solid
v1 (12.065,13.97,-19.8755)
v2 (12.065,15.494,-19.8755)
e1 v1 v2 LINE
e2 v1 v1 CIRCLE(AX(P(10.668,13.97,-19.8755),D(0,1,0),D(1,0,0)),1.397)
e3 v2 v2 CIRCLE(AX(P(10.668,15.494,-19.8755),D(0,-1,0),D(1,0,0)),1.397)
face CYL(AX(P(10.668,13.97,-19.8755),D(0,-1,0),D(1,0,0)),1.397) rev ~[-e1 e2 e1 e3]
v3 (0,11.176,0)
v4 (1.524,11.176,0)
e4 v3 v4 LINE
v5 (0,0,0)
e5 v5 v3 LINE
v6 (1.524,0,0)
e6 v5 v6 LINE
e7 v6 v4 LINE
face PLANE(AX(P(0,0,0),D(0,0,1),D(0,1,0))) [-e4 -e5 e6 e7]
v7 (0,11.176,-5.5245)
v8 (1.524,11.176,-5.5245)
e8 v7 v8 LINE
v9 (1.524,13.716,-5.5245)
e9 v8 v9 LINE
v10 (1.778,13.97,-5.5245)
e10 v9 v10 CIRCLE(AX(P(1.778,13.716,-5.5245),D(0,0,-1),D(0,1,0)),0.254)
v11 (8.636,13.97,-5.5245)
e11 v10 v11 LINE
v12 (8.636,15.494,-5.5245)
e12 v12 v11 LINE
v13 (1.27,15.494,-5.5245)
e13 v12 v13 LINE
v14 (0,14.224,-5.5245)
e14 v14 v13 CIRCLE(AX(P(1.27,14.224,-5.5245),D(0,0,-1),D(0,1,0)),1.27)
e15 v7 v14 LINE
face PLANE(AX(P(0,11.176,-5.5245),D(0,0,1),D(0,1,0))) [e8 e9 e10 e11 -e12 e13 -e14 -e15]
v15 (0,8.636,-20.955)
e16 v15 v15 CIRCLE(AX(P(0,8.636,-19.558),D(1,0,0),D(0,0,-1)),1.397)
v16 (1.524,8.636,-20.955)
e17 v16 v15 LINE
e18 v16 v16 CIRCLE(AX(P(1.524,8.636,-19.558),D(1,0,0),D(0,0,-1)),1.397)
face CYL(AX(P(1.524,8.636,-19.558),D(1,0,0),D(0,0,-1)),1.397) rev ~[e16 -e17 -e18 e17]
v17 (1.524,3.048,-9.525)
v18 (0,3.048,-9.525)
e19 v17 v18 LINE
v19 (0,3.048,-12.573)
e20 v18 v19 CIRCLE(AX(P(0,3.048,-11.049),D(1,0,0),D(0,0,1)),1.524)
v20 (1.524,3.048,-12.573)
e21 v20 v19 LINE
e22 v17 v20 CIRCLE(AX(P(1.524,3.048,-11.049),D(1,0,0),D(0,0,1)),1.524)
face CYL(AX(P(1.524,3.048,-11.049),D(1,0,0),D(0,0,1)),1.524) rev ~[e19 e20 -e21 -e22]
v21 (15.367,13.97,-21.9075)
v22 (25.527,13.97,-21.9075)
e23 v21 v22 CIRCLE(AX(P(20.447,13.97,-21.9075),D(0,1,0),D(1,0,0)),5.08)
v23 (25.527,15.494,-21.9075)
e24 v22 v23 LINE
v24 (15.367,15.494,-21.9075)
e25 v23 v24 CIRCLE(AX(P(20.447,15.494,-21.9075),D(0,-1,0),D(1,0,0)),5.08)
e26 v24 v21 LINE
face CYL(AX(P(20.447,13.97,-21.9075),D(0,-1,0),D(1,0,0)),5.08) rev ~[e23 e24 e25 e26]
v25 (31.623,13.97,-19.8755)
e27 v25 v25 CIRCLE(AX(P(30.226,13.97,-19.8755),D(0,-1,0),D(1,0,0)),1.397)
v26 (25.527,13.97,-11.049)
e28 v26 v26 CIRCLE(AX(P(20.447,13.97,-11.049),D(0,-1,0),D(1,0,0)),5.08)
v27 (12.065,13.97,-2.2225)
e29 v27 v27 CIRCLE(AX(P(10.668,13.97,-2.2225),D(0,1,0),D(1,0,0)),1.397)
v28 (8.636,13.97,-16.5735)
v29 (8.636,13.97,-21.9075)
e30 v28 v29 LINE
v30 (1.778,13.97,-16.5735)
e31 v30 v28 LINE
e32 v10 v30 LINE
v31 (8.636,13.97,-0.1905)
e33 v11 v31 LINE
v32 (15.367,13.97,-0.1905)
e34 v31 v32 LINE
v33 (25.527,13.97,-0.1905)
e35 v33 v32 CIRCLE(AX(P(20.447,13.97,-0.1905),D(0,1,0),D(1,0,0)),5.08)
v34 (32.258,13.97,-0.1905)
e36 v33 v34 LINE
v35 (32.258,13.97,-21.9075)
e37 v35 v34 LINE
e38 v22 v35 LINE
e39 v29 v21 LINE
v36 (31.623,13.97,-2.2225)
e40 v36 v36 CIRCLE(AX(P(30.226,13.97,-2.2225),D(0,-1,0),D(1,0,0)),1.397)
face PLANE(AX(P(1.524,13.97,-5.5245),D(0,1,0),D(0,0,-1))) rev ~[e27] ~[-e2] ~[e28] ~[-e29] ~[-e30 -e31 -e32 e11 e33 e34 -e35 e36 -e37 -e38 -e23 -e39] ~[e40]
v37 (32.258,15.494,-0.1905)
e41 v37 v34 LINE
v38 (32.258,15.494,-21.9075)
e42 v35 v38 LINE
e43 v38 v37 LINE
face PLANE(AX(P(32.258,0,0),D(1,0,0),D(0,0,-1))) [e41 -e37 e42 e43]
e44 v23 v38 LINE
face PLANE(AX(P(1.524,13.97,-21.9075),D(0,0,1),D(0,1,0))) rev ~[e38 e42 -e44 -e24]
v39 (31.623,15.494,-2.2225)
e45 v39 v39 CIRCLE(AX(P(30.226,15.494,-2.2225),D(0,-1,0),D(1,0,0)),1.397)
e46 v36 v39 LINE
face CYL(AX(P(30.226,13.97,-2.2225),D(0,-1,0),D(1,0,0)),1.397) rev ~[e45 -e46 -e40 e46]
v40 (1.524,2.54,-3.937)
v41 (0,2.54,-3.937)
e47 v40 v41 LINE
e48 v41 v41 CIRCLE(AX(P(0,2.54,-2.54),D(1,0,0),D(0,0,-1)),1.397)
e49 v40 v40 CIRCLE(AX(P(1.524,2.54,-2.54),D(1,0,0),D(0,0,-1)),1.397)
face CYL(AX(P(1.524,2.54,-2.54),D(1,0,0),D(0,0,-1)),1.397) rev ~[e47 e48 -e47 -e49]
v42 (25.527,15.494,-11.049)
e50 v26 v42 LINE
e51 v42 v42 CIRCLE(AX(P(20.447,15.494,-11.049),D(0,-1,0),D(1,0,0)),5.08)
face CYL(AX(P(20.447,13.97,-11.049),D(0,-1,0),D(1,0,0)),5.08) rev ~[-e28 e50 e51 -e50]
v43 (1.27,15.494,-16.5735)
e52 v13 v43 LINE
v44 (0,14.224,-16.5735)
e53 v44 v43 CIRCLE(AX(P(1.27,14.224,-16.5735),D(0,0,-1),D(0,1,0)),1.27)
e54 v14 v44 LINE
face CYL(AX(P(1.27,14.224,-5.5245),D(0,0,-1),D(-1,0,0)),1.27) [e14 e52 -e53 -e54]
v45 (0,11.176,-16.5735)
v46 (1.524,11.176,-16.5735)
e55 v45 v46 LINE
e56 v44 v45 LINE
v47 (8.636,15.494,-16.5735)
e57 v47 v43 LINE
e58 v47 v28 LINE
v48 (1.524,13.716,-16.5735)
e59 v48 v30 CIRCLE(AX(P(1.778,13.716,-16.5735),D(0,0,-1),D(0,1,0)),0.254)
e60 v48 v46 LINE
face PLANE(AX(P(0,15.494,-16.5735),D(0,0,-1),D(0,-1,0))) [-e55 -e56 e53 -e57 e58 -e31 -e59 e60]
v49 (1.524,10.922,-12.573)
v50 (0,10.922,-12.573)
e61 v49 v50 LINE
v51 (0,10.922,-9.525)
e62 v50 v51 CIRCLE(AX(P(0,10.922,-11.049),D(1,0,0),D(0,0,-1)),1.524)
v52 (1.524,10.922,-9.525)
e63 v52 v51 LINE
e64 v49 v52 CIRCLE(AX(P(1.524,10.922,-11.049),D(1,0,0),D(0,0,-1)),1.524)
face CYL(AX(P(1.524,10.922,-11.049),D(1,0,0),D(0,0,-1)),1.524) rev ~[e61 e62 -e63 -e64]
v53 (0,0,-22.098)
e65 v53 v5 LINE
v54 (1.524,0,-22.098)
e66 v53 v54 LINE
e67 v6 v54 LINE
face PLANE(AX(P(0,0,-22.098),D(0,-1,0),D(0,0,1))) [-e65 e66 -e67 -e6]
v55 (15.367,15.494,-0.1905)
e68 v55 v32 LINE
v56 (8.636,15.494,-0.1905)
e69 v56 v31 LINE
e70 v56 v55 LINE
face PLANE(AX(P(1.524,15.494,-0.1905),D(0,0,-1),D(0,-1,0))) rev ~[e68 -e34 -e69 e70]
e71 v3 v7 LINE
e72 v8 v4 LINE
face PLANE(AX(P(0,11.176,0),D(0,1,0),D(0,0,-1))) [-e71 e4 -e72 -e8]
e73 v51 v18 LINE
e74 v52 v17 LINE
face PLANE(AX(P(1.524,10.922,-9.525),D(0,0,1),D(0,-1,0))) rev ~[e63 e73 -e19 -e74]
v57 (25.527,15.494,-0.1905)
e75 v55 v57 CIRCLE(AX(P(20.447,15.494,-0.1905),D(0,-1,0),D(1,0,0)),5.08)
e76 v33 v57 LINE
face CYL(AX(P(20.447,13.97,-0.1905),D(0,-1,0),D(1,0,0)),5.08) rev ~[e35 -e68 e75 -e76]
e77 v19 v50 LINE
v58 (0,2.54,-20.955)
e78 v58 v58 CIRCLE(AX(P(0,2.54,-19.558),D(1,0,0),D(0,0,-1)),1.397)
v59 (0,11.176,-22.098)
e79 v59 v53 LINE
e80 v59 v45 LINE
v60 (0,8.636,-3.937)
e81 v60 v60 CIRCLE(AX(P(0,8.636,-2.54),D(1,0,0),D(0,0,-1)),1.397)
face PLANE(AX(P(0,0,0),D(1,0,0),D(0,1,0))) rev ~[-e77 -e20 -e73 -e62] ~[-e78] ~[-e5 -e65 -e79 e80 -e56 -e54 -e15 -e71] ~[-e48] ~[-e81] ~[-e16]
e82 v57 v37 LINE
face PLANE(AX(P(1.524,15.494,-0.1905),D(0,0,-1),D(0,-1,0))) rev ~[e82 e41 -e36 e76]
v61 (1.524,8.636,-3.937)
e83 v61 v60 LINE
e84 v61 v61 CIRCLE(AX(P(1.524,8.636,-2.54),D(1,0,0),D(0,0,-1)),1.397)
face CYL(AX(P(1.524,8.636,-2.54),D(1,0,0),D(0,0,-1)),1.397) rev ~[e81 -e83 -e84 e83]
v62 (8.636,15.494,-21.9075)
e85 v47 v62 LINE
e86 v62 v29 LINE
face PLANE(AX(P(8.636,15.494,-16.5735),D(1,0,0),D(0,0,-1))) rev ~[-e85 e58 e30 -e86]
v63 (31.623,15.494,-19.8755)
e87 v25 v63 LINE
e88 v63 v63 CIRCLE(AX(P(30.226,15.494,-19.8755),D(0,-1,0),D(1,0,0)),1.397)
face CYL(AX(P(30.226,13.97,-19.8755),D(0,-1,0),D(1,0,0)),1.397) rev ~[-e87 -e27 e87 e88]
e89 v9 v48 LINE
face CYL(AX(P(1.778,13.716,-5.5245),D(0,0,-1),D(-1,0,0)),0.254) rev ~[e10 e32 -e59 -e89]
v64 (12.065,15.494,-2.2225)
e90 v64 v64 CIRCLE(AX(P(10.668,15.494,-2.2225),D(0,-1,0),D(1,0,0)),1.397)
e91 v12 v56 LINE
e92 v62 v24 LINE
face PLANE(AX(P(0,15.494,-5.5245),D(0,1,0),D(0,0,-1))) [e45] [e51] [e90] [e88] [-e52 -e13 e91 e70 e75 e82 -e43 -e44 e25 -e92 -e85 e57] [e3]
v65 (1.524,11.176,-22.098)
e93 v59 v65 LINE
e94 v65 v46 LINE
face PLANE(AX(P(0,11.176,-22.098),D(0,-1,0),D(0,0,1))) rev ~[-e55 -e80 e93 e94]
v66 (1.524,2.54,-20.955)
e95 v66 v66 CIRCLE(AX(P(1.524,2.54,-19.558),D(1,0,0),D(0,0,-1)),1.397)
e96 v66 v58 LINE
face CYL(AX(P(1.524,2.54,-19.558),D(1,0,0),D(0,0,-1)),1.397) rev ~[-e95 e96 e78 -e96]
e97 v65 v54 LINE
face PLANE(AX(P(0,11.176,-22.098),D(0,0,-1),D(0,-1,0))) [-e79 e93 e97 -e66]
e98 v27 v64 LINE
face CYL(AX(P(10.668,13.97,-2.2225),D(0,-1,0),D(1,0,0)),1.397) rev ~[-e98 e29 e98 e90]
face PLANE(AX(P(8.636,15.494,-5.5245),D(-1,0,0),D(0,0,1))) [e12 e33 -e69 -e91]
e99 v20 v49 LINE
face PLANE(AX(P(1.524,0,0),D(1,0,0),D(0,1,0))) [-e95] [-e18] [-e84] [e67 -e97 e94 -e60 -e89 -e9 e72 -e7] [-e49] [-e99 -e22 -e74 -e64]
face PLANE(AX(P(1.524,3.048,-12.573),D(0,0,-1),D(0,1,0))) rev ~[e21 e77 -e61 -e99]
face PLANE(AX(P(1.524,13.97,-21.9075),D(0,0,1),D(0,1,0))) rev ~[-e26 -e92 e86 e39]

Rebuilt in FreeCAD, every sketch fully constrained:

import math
import FreeCAD as App
import Part
import Sketcher
from FreeCAD import Vector
Q = App.Units.Quantity


def edges_at(feature, points):
    """Names of the edges that pass closest to the given points."""
    edges = feature.Shape.Edges
    near = lambda p: min(range(len(edges)), key=lambda i: edges[i].distToShape(Part.Vertex(*p))[0])
    return sorted({f"Edge{near(p) + 1}" for p in points})


def add_polygon(sketch, points):
    """Adds a closed chain of lines whose ends are joined by coincident constraints."""
    first, n = sketch.GeometryCount, len(points)
    for a, b in zip(points, points[1:] + points[:1]):
        sketch.addGeometry(Part.LineSegment(App.Vector(*a, 0), App.Vector(*b, 0)), False)
    for i in range(n):
        sketch.addConstraint(Sketcher.Constraint("Coincident", first + i, 2, first + (i + 1) % n, 1))

doc = App.newDocument("Part")
body = doc.addObject("PartDesign::Body", "Body")

# Sketch on YZ plane
sketch1 = body.newObject("Sketcher::SketchObject", "Sketch")
sketch1.AttachmentSupport = (doc.getObject("YZ_Plane"), [""])
sketch1.MapMode = "FlatFace"
add_polygon(sketch1, [(11.2, 0), (0, 0), (0, -22.1), (11.2, -22.1), (11.2, -16.6), (15.5, -16.6), (15.5, -5.5), (11.2, -5.5)])  # lines 0-7
sketch1.addConstraint(Sketcher.Constraint("Horizontal", 0))
sketch1.addConstraint(Sketcher.Constraint("Vertical", 1))
sketch1.addConstraint(Sketcher.Constraint("Horizontal", 2))
sketch1.addConstraint(Sketcher.Constraint("Vertical", 3))
sketch1.addConstraint(Sketcher.Constraint("Horizontal", 4))
sketch1.addConstraint(Sketcher.Constraint("Vertical", 5))
sketch1.addConstraint(Sketcher.Constraint("Horizontal", 6))
sketch1.addConstraint(Sketcher.Constraint("Vertical", 7))
sketch1.addConstraint(Sketcher.Constraint("Coincident", 0, 2, -1, 1))
sketch1.addConstraint(Sketcher.Constraint("Vertical", 3, 2, 6, 2))
sketch1.addConstraint(Sketcher.Constraint("Equal", 3, 7))
sketch1.addConstraint(Sketcher.Constraint("DistanceX", 0, 2, 0, 1, Q("0.44 in")))
sketch1.addConstraint(Sketcher.Constraint("DistanceX", 4, 1, 4, 2, Q("0.17 in")))
sketch1.addConstraint(Sketcher.Constraint("DistanceY", 1, 2, 1, 1, Q("0.87 in")))
sketch1.addConstraint(Sketcher.Constraint("DistanceY", 3, 1, 3, 2, Q("0.2175 in")))
pad1 = body.newObject("PartDesign::Pad", "Pad")
pad1.Profile = sketch1
pad1.Length = Q("0.06 in")

# Sketch on YZ plane
sketch2 = body.newObject("Sketcher::SketchObject", "Sketch001")
sketch2.AttachmentSupport = (doc.getObject("YZ_Plane"), [""])
sketch2.MapMode = "FlatFace"
sketch2.AttachmentOffset = App.Placement(Vector(0, 0, 0.06 * 25.4), App.Rotation())
add_polygon(sketch2, [(14, -21.9), (15.5, -21.9), (15.5, -0.2), (14, -0.2)])  # lines 0-3
sketch2.addConstraint(Sketcher.Constraint("Horizontal", 0))
sketch2.addConstraint(Sketcher.Constraint("Vertical", 1))
sketch2.addConstraint(Sketcher.Constraint("Horizontal", 2))
sketch2.addConstraint(Sketcher.Constraint("Vertical", 3))
sketch2.addConstraint(Sketcher.Constraint("DistanceX", 0, 1, 0, 2, Q("0.06 in")))
sketch2.addConstraint(Sketcher.Constraint("DistanceY", 1, 1, 1, 2, Q("0.855 in")))
sketch2.addConstraint(Sketcher.Constraint("DistanceX", -1, 1, 0, 2, Q("0.61 in")))
sketch2.addConstraint(Sketcher.Constraint("DistanceY", 0, 2, -1, 1, Q("0.8625 in")))
pad2 = body.newObject("PartDesign::Pad", "Pad001")
pad2.Profile = sketch2
pad2.Length = Q("1.21 in")
doc.recompute()

fillet = body.newObject("PartDesign::Fillet", "Fillet")
fillet.Base = (pad2, edges_at(pad2, [(0, 15.494, -11.049)]))
fillet.Radius = Q("0.05 in")
doc.recompute()

fillet2 = body.newObject("PartDesign::Fillet", "Fillet001")
fillet2.Base = (fillet, edges_at(fillet, [(1.524, 13.97, -11.049)]))
fillet2.Radius = Q("0.01 in")

# Sketch on YZ plane
sketch3 = body.newObject("Sketcher::SketchObject", "Sketch002")
sketch3.AttachmentSupport = (doc.getObject("YZ_Plane"), [""])
sketch3.MapMode = "FlatFace"
sketch3.AttachmentOffset = App.Placement(Vector(0, 0, 0.06 * 25.4), App.Rotation())
sketch3.addGeometry(Part.Circle(Vector(2.5, -19.6, 0), Vector(0, 0, 1), 1.4), False)
sketch3.addGeometry(Part.Circle(Vector(8.6, -19.6, 0), Vector(0, 0, 1), 1.4), False)
sketch3.addGeometry(Part.Circle(Vector(2.5, -2.5, 0), Vector(0, 0, 1), 1.4), False)
sketch3.addGeometry(Part.Circle(Vector(8.6, -2.5, 0), Vector(0, 0, 1), 1.4), False)
sketch3.addGeometry(Part.ArcOfCircle(Part.Circle(Vector(3, -11, 0), Vector(0, 0, 1), 1.5), math.radians(90), math.radians(270)), False)
sketch3.addGeometry(Part.LineSegment(Vector(3, -12.6, 0), Vector(10.9, -12.6, 0)), False)
sketch3.addGeometry(Part.ArcOfCircle(Part.Circle(Vector(10.9, -11, 0), Vector(0, 0, 1), 1.5), math.radians(-90), math.radians(90)), False)
sketch3.addGeometry(Part.LineSegment(Vector(10.9, -9.5, 0), Vector(3, -9.5, 0)), False)
sketch3.addConstraint(Sketcher.Constraint("Tangent", 4, 2, 5, 1))
sketch3.addConstraint(Sketcher.Constraint("Tangent", 5, 2, 6, 1))
sketch3.addConstraint(Sketcher.Constraint("Tangent", 6, 2, 7, 1))
sketch3.addConstraint(Sketcher.Constraint("Tangent", 7, 2, 4, 1))
sketch3.addConstraint(Sketcher.Constraint("Horizontal", 5))
sketch3.addConstraint(Sketcher.Constraint("Horizontal", 7))
sketch3.addConstraint(Sketcher.Constraint("Equal", 0, 1))
sketch3.addConstraint(Sketcher.Constraint("Equal", 1, 2))
sketch3.addConstraint(Sketcher.Constraint("Equal", 2, 3))
sketch3.addConstraint(Sketcher.Constraint("Horizontal", 0, 3, 1, 3))
sketch3.addConstraint(Sketcher.Constraint("Horizontal", 2, 3, 3, 3))
sketch3.addConstraint(Sketcher.Constraint("Vertical", 0, 3, 2, 3))
sketch3.addConstraint(Sketcher.Constraint("Vertical", 1, 3, 3, 3))
sketch3.addConstraint(Sketcher.Constraint("Diameter", 0, Q("0.11 in")))
sketch3.addConstraint(Sketcher.Constraint("Radius", 4, Q("0.06 in")))
sketch3.addConstraint(Sketcher.Constraint("DistanceX", -1, 1, 4, 3, Q("0.12 in")))
sketch3.addConstraint(Sketcher.Constraint("DistanceX", -1, 1, 6, 3, Q("0.43 in")))
sketch3.addConstraint(Sketcher.Constraint("DistanceY", 0, 3, 2, 3, Q("0.67 in")))
sketch3.addConstraint(Sketcher.Constraint("DistanceX", -1, 1, 0, 3, Q("0.1 in")))
sketch3.addConstraint(Sketcher.Constraint("DistanceY", 2, 3, -1, 1, Q("0.1 in")))
sketch3.addConstraint(Sketcher.Constraint("DistanceX", -1, 1, 1, 3, Q("0.34 in")))
sketch3.addConstraint(Sketcher.Constraint("DistanceY", 4, 3, -1, 1, Q("0.435 in")))
pocket1 = body.newObject("PartDesign::Pocket", "Pocket")
pocket1.Profile = sketch3
pocket1.Length = Q("1.21 in")

# Sketch on XZ plane
sketch4 = body.newObject("Sketcher::SketchObject", "Sketch003")
sketch4.AttachmentSupport = (doc.getObject("XZ_Plane"), [""])
sketch4.MapMode = "FlatFace"
sketch4.AttachmentOffset = App.Placement(Vector(0, 0, -0.61 * 25.4), App.Rotation())
add_polygon(sketch4, [(2, -22), (2, -17), (9, -17), (9, -22)])  # lines 0-3
add_polygon(sketch4, [(9, -6), (2, -6), (2, 0), (9, 0)])  # lines 4-7
sketch4.addConstraint(Sketcher.Constraint("Vertical", 0))
sketch4.addConstraint(Sketcher.Constraint("Horizontal", 1))
sketch4.addConstraint(Sketcher.Constraint("Vertical", 2))
sketch4.addConstraint(Sketcher.Constraint("Horizontal", 3))
sketch4.addConstraint(Sketcher.Constraint("Horizontal", 4))
sketch4.addConstraint(Sketcher.Constraint("Vertical", 5))
sketch4.addConstraint(Sketcher.Constraint("Horizontal", 6))
sketch4.addConstraint(Sketcher.Constraint("Vertical", 7))
sketch4.addConstraint(Sketcher.Constraint("Vertical", 3, 2, 4, 2))
sketch4.addConstraint(Sketcher.Constraint("Vertical", 2, 2, 6, 2))
sketch4.addConstraint(Sketcher.Constraint("Equal", 2, 5))
sketch4.addConstraint(Sketcher.Constraint("DistanceX", 1, 1, 1, 2, Q("0.28 in")))
sketch4.addConstraint(Sketcher.Constraint("DistanceY", 0, 1, 0, 2, Q("0.21 in")))
sketch4.addConstraint(Sketcher.Constraint("DistanceX", -1, 1, 0, 2, Q("0.06 in")))
sketch4.addConstraint(Sketcher.Constraint("DistanceY", 0, 2, 4, 2, Q("0.435 in")))
sketch4.addConstraint(Sketcher.Constraint("DistanceY", 0, 2, -1, 1, Q("0.6525 in")))
pocket2 = body.newObject("PartDesign::Pocket", "Pocket001")
pocket2.Profile = sketch4
pocket2.Length = Q("1.21 in")
pocket2.Reversed = True

# Sketch on XZ plane
sketch5 = body.newObject("Sketcher::SketchObject", "Sketch004")
sketch5.AttachmentSupport = (doc.getObject("XZ_Plane"), [""])
sketch5.MapMode = "FlatFace"
sketch5.AttachmentOffset = App.Placement(Vector(0, 0, -0.55 * 25.4), App.Rotation())
sketch5.addGeometry(Part.Circle(Vector(20, -11, 0), Vector(0, 0, 1), 5), False)
sketch5.addGeometry(Part.Circle(Vector(20, 0, 0), Vector(0, 0, 1), 5), False)
sketch5.addGeometry(Part.Circle(Vector(20, -22, 0), Vector(0, 0, 1), 5), False)
sketch5.addConstraint(Sketcher.Constraint("Equal", 0, 1))
sketch5.addConstraint(Sketcher.Constraint("Equal", 1, 2))
sketch5.addConstraint(Sketcher.Constraint("Vertical", 0, 3, 1, 3))
sketch5.addConstraint(Sketcher.Constraint("Vertical", 1, 3, 2, 3))
sketch5.addConstraint(Sketcher.Constraint("Diameter", 0, Q("0.4 in")))
sketch5.addConstraint(Sketcher.Constraint("DistanceX", -1, 1, 0, 3, Q("0.805 in")))
sketch5.addConstraint(Sketcher.Constraint("DistanceY", 0, 3, -1, 1, Q("0.435 in")))
sketch5.addConstraint(Sketcher.Constraint("DistanceY", 2, 3, 1, 3, Q("0.855 in")))
sketch5.addConstraint(Sketcher.Constraint("DistanceY", 1, 3, -1, 1, Q("0.0075 in")))
pocket3 = body.newObject("PartDesign::Pocket", "Pocket002")
pocket3.Profile = sketch5
pocket3.Length = Q("1.21 in")

# Sketch on XZ plane
sketch6 = body.newObject("Sketcher::SketchObject", "Sketch005")
sketch6.AttachmentSupport = (doc.getObject("XZ_Plane"), [""])
sketch6.MapMode = "FlatFace"
sketch6.AttachmentOffset = App.Placement(Vector(0, 0, -0.55 * 25.4), App.Rotation())
sketch6.addGeometry(Part.Circle(Vector(30.2, -2.2, 0), Vector(0, 0, 1), 1.4), False)
sketch6.addGeometry(Part.Circle(Vector(30.2, -19.9, 0), Vector(0, 0, 1), 1.4), False)
sketch6.addGeometry(Part.Circle(Vector(10.7, -2.2, 0), Vector(0, 0, 1), 1.4), False)
sketch6.addGeometry(Part.Circle(Vector(10.7, -19.9, 0), Vector(0, 0, 1), 1.4), False)
sketch6.addConstraint(Sketcher.Constraint("Equal", 0, 1))
sketch6.addConstraint(Sketcher.Constraint("Equal", 1, 2))
sketch6.addConstraint(Sketcher.Constraint("Equal", 2, 3))
sketch6.addConstraint(Sketcher.Constraint("Horizontal", 0, 3, 2, 3))
sketch6.addConstraint(Sketcher.Constraint("Horizontal", 1, 3, 3, 3))
sketch6.addConstraint(Sketcher.Constraint("Vertical", 0, 3, 1, 3))
sketch6.addConstraint(Sketcher.Constraint("Vertical", 2, 3, 3, 3))
sketch6.addConstraint(Sketcher.Constraint("Diameter", 0, Q("0.11 in")))
sketch6.addConstraint(Sketcher.Constraint("DistanceX", -1, 1, 0, 3, Q("1.19 in")))
sketch6.addConstraint(Sketcher.Constraint("DistanceX", -1, 1, 2, 3, Q("0.42 in")))
sketch6.addConstraint(Sketcher.Constraint("DistanceY", 1, 3, 0, 3, Q("0.695 in")))
sketch6.addConstraint(Sketcher.Constraint("DistanceY", 0, 3, -1, 1, Q("0.0875 in")))
pocket4 = body.newObject("PartDesign::Pocket", "Pocket003")
pocket4.Profile = sketch6
pocket4.Length = Q("1 in")

doc.recompute()
